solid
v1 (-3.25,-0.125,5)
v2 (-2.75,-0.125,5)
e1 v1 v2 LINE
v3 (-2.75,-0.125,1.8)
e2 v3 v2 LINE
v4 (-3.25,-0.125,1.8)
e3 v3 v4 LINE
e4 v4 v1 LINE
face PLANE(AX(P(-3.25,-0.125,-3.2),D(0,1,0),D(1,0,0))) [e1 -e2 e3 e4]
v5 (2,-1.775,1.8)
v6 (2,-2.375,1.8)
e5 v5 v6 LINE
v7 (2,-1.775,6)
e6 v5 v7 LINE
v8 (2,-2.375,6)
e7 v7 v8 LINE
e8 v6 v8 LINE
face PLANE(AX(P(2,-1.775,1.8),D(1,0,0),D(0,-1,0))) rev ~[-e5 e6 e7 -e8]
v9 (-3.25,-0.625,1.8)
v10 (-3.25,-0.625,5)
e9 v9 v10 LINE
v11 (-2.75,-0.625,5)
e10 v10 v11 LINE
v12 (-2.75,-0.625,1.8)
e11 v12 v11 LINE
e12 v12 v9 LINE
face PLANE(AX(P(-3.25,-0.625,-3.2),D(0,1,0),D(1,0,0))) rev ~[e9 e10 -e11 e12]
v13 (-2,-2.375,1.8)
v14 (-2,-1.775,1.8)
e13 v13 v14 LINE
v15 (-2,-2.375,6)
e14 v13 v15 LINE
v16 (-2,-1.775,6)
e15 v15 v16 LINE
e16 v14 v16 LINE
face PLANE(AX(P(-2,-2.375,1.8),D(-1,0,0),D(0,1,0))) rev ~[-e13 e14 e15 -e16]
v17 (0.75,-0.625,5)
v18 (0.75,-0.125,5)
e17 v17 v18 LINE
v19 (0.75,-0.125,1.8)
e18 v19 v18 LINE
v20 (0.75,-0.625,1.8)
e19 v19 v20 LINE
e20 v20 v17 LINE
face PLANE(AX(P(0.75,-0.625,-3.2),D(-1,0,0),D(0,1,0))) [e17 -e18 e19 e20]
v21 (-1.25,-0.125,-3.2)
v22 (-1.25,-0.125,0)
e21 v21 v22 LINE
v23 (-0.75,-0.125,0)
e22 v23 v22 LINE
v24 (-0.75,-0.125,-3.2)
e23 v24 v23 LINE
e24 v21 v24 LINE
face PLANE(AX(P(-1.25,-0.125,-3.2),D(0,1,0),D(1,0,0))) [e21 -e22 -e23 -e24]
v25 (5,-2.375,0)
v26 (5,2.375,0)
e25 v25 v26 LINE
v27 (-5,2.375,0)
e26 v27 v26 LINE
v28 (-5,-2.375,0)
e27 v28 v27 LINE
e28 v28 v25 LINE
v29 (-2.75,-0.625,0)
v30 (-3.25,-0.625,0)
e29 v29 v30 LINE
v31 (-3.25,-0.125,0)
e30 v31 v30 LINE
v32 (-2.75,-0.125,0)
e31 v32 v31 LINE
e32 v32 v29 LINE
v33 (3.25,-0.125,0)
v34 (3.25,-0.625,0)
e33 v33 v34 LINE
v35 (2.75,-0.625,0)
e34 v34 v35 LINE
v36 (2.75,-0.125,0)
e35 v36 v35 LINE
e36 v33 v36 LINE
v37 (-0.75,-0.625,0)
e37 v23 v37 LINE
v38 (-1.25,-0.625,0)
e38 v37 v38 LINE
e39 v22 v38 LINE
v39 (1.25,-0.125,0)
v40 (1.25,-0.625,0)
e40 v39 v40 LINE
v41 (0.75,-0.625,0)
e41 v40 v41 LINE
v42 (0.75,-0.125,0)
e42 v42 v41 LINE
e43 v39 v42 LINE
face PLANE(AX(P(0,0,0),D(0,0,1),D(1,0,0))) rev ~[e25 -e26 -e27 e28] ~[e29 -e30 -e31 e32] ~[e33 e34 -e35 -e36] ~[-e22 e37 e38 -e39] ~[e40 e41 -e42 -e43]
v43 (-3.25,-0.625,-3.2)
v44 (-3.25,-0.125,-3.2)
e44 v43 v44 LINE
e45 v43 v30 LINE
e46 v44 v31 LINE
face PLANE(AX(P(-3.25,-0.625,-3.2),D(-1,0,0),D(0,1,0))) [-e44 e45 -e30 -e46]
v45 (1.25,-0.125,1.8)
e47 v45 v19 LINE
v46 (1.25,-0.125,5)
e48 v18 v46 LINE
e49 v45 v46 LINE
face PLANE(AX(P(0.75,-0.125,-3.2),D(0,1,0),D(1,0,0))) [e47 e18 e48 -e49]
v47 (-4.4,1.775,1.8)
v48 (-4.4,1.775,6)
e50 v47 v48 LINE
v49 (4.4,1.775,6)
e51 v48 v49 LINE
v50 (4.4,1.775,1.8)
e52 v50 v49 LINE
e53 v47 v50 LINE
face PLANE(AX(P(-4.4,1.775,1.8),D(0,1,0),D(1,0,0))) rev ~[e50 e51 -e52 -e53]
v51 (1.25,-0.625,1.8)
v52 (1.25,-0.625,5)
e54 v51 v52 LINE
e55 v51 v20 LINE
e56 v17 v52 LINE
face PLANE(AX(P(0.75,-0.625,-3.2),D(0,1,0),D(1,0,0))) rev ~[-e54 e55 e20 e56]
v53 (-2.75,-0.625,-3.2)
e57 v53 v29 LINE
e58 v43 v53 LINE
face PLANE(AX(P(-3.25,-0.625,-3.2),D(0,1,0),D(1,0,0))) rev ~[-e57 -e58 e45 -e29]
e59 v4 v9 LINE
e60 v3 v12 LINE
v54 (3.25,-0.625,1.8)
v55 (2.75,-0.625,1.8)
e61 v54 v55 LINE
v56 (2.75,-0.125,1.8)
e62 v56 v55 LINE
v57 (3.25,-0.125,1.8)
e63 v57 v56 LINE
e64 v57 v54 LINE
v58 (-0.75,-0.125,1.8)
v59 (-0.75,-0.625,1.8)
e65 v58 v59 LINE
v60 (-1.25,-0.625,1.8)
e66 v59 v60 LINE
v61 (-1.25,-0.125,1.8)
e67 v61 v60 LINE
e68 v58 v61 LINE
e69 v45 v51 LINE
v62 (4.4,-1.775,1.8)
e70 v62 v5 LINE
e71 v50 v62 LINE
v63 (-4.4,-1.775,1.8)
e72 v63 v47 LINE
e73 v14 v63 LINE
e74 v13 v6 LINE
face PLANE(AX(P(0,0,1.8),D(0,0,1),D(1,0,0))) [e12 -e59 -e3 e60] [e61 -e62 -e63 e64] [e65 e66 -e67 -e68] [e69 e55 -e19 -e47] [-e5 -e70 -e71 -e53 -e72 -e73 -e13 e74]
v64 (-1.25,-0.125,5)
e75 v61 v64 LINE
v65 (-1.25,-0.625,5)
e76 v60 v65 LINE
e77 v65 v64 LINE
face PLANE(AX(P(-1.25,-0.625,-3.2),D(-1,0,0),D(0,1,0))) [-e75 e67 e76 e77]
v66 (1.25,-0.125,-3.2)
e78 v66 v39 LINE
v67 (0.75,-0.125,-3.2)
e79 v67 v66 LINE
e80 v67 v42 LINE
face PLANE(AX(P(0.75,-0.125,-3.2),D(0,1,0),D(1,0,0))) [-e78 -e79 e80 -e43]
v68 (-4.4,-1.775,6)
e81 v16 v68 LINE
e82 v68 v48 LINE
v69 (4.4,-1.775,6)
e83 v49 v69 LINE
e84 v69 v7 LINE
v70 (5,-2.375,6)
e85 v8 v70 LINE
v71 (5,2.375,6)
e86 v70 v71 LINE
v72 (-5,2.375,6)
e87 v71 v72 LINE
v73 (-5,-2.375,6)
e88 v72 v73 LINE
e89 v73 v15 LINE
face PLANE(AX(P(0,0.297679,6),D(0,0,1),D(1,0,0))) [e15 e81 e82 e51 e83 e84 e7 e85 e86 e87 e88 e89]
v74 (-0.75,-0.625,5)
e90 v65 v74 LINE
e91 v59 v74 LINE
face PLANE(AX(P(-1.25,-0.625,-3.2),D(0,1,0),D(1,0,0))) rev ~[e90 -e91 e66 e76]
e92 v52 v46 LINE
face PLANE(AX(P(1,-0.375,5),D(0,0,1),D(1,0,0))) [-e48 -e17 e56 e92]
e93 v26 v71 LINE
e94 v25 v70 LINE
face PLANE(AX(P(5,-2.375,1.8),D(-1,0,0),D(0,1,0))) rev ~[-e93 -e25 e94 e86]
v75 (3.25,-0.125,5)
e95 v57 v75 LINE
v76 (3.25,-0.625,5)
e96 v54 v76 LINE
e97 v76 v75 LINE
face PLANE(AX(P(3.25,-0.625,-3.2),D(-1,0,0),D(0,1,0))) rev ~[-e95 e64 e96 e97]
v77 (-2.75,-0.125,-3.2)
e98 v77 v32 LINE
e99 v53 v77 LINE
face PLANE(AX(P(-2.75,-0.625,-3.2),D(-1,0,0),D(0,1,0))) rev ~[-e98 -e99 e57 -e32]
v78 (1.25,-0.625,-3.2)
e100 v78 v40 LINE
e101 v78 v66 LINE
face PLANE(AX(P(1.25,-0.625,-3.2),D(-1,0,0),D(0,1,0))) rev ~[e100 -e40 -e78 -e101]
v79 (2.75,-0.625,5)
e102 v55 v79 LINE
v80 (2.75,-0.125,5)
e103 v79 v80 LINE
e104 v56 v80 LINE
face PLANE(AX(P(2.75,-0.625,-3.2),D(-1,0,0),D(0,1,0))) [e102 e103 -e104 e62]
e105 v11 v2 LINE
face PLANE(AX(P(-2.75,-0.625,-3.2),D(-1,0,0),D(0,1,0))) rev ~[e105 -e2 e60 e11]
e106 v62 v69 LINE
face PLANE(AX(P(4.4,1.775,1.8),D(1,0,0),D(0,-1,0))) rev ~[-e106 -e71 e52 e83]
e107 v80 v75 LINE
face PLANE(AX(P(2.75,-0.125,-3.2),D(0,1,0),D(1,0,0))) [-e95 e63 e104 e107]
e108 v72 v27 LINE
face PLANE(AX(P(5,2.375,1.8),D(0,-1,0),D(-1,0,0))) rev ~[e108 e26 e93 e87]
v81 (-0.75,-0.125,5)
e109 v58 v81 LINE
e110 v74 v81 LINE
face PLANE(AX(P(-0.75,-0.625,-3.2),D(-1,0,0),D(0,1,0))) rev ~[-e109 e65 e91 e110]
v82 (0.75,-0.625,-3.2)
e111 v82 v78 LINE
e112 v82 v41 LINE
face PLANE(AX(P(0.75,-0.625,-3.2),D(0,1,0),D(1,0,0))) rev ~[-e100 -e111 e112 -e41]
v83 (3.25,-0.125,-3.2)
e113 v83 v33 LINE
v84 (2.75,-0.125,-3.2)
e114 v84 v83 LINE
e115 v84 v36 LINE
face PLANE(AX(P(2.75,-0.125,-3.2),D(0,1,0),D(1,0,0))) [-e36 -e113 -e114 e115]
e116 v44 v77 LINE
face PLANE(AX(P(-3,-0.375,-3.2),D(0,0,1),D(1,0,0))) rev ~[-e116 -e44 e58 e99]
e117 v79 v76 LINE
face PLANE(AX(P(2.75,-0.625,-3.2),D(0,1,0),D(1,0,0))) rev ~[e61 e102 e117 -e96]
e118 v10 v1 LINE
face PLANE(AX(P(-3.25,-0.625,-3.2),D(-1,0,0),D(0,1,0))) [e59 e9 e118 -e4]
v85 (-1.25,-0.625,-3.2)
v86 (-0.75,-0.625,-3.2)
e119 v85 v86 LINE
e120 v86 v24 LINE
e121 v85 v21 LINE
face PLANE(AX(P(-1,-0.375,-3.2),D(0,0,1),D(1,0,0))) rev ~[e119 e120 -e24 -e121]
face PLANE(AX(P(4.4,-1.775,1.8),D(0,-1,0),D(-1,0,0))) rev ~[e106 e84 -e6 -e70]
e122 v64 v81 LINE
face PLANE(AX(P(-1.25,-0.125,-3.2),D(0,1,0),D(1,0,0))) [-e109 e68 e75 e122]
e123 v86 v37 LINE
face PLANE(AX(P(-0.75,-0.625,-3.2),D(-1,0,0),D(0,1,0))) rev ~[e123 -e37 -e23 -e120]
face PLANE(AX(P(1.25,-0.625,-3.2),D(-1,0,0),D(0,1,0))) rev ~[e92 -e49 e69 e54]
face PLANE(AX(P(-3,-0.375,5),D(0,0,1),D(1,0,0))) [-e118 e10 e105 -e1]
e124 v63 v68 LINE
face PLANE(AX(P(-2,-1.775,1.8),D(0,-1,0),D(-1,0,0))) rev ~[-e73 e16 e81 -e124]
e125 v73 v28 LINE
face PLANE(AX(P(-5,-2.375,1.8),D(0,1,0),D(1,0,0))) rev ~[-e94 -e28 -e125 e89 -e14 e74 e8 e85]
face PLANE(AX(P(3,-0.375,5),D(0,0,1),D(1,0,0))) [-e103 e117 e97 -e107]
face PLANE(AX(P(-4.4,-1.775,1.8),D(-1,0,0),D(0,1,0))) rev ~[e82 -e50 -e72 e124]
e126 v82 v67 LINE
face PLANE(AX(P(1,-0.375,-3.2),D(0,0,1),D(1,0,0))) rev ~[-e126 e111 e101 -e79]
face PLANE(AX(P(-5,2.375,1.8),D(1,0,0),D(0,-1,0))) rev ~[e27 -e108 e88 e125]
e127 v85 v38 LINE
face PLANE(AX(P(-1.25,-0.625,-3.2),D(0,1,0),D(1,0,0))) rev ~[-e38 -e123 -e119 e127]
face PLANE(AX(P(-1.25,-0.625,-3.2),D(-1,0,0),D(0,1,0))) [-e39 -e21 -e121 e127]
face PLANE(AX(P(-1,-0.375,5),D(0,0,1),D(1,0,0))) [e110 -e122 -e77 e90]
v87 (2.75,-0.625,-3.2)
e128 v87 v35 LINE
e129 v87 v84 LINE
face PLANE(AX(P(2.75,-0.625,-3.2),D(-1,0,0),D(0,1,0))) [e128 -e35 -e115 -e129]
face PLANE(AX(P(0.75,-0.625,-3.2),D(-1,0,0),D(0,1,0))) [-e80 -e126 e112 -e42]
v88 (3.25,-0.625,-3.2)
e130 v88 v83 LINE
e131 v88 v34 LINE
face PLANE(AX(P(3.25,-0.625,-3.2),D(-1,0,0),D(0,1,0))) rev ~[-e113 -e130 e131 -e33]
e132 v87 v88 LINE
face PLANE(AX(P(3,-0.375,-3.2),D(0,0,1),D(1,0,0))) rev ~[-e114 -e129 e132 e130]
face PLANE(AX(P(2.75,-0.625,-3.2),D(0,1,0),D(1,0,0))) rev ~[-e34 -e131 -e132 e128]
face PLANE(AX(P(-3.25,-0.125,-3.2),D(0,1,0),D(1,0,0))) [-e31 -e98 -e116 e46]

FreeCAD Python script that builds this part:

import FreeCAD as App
import Part
import Sketcher

V = App.Vector
Q = App.Units.Quantity

doc = App.newDocument("Part")
body = doc.addObject("PartDesign::Body", "Body")

sketch1 = body.newObject("Sketcher::SketchObject", "Sketch")
sketch1.AttachmentSupport = (doc.getObject("XY_Plane"), [""])
sketch1.MapMode = "FlatFace"
sketch1.addGeometry([
    Part.LineSegment(V(-5, 2.375, 0), V(-5, -2.375, 0)),
    Part.LineSegment(V(-5, -2.375, 0), V(5, -2.375, 0)),
    Part.LineSegment(V(5, -2.375, 0), V(5, 2.375, 0)),
    Part.LineSegment(V(5, 2.375, 0), V(-5, 2.375, 0)),
], False)
sketch1.addConstraint([
    Sketcher.Constraint("Coincident", 0, 2, 1, 1),
    Sketcher.Constraint("Coincident", 1, 2, 2, 1),
    Sketcher.Constraint("Coincident", 2, 2, 3, 1),
    Sketcher.Constraint("Coincident", 3, 2, 0, 1),
    Sketcher.Constraint("Vertical", 0),
    Sketcher.Constraint("Horizontal", 1),
    Sketcher.Constraint("Vertical", 2),
    Sketcher.Constraint("Horizontal", 3),
    Sketcher.Constraint("Symmetric", 0, 2, 2, 2, -1, 1),
    Sketcher.Constraint("DistanceX", 1, 1, 1, 2, Q("10 mm")),
    Sketcher.Constraint("DistanceY", 0, 2, 0, 1, Q("4.75 mm")),
])
pad1 = body.newObject("PartDesign::Pad", "Pad")
pad1.Profile = sketch1
pad1.Length = 1.8

sketch2 = body.newObject("Sketcher::SketchObject", "Sketch001")
sketch2.AttachmentSupport = (doc.getObject("XY_Plane"), [""])
sketch2.MapMode = "FlatFace"
sketch2.AttachmentOffset = App.Placement(V(0, 0, 1.8), App.Rotation())
sketch2.addGeometry([
    Part.LineSegment(V(-2, -2.375, 0), V(-2, -1.775, 0)),
    Part.LineSegment(V(-2, -1.775, 0), V(-4.4, -1.775, 0)),
    Part.LineSegment(V(-4.4, -1.775, 0), V(-4.4, 1.775, 0)),
    Part.LineSegment(V(-4.4, 1.775, 0), V(4.4, 1.775, 0)),
    Part.LineSegment(V(4.4, 1.775, 0), V(4.4, -1.775, 0)),
    Part.LineSegment(V(4.4, -1.775, 0), V(2, -1.775, 0)),
    Part.LineSegment(V(2, -1.775, 0), V(2, -2.375, 0)),
    Part.LineSegment(V(2, -2.375, 0), V(5, -2.375, 0)),
    Part.LineSegment(V(5, -2.375, 0), V(5, 2.375, 0)),
    Part.LineSegment(V(5, 2.375, 0), V(-5, 2.375, 0)),
    Part.LineSegment(V(-5, 2.375, 0), V(-5, -2.375, 0)),
    Part.LineSegment(V(-5, -2.375, 0), V(-2, -2.375, 0)),
], False)
sketch2.addConstraint([
    Sketcher.Constraint("Coincident", 0, 2, 1, 1),
    Sketcher.Constraint("Coincident", 1, 2, 2, 1),
    Sketcher.Constraint("Coincident", 2, 2, 3, 1),
    Sketcher.Constraint("Coincident", 3, 2, 4, 1),
    Sketcher.Constraint("Coincident", 4, 2, 5, 1),
    Sketcher.Constraint("Coincident", 5, 2, 6, 1),
    Sketcher.Constraint("Coincident", 6, 2, 7, 1),
    Sketcher.Constraint("Coincident", 7, 2, 8, 1),
    Sketcher.Constraint("Coincident", 8, 2, 9, 1),
    Sketcher.Constraint("Coincident", 9, 2, 10, 1),
    Sketcher.Constraint("Coincident", 10, 2, 11, 1),
    Sketcher.Constraint("Coincident", 11, 2, 0, 1),
    Sketcher.Constraint("Vertical", 0),
    Sketcher.Constraint("Horizontal", 1),
    Sketcher.Constraint("Vertical", 2),
    Sketcher.Constraint("Horizontal", 3),
    Sketcher.Constraint("Vertical", 4),
    Sketcher.Constraint("Horizontal", 5),
    Sketcher.Constraint("Vertical", 6),
    Sketcher.Constraint("Horizontal", 7),
    Sketcher.Constraint("Vertical", 8),
    Sketcher.Constraint("Horizontal", 9),
    Sketcher.Constraint("Vertical", 10),
    Sketcher.Constraint("Horizontal", 11),
    Sketcher.Constraint("Symmetric", 1, 2, 3, 2, -1, 1),
    Sketcher.Constraint("Symmetric", 7, 2, 9, 2, -1, 1),
    Sketcher.Constraint("Symmetric", 0, 2, 5, 2, -2),
    Sketcher.Constraint("Horizontal", 7, 2, 10, 2),
    Sketcher.Constraint("DistanceX", 7, 1, 7, 2, Q("3 mm")),
    Sketcher.Constraint("DistanceX", 9, 2, 9, 1, Q("10 mm")),
    Sketcher.Constraint("DistanceX", 1, 2, 1, 1, Q("2.4 mm")),
    Sketcher.Constraint("DistanceY", 0, 1, 0, 2, Q("0.6 mm")),
    Sketcher.Constraint("DistanceY", 2, 1, 2, 2, Q("3.55 mm")),
])
pad2 = body.newObject("PartDesign::Pad", "Pad001")
pad2.Profile = sketch2
pad2.Length = 4.2

sketch3 = body.newObject("Sketcher::SketchObject", "Sketch002")
sketch3.AttachmentSupport = (doc.getObject("XY_Plane"), [""])
sketch3.MapMode = "FlatFace"
sketch3.AttachmentOffset = App.Placement(V(0, 0, -3.2), App.Rotation())
sketch3.addGeometry([
    Part.LineSegment(V(-3.25, -0.125, 0), V(-3.25, -0.625, 0)),
    Part.LineSegment(V(-3.25, -0.625, 0), V(-2.75, -0.625, 0)),
    Part.LineSegment(V(-2.75, -0.625, 0), V(-2.75, -0.125, 0)),
    Part.LineSegment(V(-2.75, -0.125, 0), V(-3.25, -0.125, 0)),
], False)
sketch3.addConstraint([
    Sketcher.Constraint("Coincident", 0, 2, 1, 1),
    Sketcher.Constraint("Coincident", 1, 2, 2, 1),
    Sketcher.Constraint("Coincident", 2, 2, 3, 1),
    Sketcher.Constraint("Coincident", 3, 2, 0, 1),
    Sketcher.Constraint("Vertical", 0),
    Sketcher.Constraint("Horizontal", 1),
    Sketcher.Constraint("Vertical", 2),
    Sketcher.Constraint("Horizontal", 3),
    Sketcher.Constraint("Equal", 3, 0),
    Sketcher.Constraint("DistanceX", 1, 1, 1, 2, Q("0.5 mm")),
    Sketcher.Constraint("DistanceX", 0, 2, -1, 1, Q("3.25 mm")),
    Sketcher.Constraint("DistanceY", 0, 2, -1, 1, Q("0.625 mm")),
])
pad3 = body.newObject("PartDesign::Pad", "Pad002")
pad3.Profile = sketch3
pad3.Length = 8.2
doc.recompute()

linearpattern = body.newObject("PartDesign::LinearPattern", "LinearPattern")
linearpattern.Originals = [pad3]
linearpattern.Direction = (doc.getObject("X_Axis"), [""])
linearpattern.Mode = "offset"
linearpattern.Offset = 2
linearpattern.Occurrences = 4
body.Tip = linearpattern

doc.recompute()
